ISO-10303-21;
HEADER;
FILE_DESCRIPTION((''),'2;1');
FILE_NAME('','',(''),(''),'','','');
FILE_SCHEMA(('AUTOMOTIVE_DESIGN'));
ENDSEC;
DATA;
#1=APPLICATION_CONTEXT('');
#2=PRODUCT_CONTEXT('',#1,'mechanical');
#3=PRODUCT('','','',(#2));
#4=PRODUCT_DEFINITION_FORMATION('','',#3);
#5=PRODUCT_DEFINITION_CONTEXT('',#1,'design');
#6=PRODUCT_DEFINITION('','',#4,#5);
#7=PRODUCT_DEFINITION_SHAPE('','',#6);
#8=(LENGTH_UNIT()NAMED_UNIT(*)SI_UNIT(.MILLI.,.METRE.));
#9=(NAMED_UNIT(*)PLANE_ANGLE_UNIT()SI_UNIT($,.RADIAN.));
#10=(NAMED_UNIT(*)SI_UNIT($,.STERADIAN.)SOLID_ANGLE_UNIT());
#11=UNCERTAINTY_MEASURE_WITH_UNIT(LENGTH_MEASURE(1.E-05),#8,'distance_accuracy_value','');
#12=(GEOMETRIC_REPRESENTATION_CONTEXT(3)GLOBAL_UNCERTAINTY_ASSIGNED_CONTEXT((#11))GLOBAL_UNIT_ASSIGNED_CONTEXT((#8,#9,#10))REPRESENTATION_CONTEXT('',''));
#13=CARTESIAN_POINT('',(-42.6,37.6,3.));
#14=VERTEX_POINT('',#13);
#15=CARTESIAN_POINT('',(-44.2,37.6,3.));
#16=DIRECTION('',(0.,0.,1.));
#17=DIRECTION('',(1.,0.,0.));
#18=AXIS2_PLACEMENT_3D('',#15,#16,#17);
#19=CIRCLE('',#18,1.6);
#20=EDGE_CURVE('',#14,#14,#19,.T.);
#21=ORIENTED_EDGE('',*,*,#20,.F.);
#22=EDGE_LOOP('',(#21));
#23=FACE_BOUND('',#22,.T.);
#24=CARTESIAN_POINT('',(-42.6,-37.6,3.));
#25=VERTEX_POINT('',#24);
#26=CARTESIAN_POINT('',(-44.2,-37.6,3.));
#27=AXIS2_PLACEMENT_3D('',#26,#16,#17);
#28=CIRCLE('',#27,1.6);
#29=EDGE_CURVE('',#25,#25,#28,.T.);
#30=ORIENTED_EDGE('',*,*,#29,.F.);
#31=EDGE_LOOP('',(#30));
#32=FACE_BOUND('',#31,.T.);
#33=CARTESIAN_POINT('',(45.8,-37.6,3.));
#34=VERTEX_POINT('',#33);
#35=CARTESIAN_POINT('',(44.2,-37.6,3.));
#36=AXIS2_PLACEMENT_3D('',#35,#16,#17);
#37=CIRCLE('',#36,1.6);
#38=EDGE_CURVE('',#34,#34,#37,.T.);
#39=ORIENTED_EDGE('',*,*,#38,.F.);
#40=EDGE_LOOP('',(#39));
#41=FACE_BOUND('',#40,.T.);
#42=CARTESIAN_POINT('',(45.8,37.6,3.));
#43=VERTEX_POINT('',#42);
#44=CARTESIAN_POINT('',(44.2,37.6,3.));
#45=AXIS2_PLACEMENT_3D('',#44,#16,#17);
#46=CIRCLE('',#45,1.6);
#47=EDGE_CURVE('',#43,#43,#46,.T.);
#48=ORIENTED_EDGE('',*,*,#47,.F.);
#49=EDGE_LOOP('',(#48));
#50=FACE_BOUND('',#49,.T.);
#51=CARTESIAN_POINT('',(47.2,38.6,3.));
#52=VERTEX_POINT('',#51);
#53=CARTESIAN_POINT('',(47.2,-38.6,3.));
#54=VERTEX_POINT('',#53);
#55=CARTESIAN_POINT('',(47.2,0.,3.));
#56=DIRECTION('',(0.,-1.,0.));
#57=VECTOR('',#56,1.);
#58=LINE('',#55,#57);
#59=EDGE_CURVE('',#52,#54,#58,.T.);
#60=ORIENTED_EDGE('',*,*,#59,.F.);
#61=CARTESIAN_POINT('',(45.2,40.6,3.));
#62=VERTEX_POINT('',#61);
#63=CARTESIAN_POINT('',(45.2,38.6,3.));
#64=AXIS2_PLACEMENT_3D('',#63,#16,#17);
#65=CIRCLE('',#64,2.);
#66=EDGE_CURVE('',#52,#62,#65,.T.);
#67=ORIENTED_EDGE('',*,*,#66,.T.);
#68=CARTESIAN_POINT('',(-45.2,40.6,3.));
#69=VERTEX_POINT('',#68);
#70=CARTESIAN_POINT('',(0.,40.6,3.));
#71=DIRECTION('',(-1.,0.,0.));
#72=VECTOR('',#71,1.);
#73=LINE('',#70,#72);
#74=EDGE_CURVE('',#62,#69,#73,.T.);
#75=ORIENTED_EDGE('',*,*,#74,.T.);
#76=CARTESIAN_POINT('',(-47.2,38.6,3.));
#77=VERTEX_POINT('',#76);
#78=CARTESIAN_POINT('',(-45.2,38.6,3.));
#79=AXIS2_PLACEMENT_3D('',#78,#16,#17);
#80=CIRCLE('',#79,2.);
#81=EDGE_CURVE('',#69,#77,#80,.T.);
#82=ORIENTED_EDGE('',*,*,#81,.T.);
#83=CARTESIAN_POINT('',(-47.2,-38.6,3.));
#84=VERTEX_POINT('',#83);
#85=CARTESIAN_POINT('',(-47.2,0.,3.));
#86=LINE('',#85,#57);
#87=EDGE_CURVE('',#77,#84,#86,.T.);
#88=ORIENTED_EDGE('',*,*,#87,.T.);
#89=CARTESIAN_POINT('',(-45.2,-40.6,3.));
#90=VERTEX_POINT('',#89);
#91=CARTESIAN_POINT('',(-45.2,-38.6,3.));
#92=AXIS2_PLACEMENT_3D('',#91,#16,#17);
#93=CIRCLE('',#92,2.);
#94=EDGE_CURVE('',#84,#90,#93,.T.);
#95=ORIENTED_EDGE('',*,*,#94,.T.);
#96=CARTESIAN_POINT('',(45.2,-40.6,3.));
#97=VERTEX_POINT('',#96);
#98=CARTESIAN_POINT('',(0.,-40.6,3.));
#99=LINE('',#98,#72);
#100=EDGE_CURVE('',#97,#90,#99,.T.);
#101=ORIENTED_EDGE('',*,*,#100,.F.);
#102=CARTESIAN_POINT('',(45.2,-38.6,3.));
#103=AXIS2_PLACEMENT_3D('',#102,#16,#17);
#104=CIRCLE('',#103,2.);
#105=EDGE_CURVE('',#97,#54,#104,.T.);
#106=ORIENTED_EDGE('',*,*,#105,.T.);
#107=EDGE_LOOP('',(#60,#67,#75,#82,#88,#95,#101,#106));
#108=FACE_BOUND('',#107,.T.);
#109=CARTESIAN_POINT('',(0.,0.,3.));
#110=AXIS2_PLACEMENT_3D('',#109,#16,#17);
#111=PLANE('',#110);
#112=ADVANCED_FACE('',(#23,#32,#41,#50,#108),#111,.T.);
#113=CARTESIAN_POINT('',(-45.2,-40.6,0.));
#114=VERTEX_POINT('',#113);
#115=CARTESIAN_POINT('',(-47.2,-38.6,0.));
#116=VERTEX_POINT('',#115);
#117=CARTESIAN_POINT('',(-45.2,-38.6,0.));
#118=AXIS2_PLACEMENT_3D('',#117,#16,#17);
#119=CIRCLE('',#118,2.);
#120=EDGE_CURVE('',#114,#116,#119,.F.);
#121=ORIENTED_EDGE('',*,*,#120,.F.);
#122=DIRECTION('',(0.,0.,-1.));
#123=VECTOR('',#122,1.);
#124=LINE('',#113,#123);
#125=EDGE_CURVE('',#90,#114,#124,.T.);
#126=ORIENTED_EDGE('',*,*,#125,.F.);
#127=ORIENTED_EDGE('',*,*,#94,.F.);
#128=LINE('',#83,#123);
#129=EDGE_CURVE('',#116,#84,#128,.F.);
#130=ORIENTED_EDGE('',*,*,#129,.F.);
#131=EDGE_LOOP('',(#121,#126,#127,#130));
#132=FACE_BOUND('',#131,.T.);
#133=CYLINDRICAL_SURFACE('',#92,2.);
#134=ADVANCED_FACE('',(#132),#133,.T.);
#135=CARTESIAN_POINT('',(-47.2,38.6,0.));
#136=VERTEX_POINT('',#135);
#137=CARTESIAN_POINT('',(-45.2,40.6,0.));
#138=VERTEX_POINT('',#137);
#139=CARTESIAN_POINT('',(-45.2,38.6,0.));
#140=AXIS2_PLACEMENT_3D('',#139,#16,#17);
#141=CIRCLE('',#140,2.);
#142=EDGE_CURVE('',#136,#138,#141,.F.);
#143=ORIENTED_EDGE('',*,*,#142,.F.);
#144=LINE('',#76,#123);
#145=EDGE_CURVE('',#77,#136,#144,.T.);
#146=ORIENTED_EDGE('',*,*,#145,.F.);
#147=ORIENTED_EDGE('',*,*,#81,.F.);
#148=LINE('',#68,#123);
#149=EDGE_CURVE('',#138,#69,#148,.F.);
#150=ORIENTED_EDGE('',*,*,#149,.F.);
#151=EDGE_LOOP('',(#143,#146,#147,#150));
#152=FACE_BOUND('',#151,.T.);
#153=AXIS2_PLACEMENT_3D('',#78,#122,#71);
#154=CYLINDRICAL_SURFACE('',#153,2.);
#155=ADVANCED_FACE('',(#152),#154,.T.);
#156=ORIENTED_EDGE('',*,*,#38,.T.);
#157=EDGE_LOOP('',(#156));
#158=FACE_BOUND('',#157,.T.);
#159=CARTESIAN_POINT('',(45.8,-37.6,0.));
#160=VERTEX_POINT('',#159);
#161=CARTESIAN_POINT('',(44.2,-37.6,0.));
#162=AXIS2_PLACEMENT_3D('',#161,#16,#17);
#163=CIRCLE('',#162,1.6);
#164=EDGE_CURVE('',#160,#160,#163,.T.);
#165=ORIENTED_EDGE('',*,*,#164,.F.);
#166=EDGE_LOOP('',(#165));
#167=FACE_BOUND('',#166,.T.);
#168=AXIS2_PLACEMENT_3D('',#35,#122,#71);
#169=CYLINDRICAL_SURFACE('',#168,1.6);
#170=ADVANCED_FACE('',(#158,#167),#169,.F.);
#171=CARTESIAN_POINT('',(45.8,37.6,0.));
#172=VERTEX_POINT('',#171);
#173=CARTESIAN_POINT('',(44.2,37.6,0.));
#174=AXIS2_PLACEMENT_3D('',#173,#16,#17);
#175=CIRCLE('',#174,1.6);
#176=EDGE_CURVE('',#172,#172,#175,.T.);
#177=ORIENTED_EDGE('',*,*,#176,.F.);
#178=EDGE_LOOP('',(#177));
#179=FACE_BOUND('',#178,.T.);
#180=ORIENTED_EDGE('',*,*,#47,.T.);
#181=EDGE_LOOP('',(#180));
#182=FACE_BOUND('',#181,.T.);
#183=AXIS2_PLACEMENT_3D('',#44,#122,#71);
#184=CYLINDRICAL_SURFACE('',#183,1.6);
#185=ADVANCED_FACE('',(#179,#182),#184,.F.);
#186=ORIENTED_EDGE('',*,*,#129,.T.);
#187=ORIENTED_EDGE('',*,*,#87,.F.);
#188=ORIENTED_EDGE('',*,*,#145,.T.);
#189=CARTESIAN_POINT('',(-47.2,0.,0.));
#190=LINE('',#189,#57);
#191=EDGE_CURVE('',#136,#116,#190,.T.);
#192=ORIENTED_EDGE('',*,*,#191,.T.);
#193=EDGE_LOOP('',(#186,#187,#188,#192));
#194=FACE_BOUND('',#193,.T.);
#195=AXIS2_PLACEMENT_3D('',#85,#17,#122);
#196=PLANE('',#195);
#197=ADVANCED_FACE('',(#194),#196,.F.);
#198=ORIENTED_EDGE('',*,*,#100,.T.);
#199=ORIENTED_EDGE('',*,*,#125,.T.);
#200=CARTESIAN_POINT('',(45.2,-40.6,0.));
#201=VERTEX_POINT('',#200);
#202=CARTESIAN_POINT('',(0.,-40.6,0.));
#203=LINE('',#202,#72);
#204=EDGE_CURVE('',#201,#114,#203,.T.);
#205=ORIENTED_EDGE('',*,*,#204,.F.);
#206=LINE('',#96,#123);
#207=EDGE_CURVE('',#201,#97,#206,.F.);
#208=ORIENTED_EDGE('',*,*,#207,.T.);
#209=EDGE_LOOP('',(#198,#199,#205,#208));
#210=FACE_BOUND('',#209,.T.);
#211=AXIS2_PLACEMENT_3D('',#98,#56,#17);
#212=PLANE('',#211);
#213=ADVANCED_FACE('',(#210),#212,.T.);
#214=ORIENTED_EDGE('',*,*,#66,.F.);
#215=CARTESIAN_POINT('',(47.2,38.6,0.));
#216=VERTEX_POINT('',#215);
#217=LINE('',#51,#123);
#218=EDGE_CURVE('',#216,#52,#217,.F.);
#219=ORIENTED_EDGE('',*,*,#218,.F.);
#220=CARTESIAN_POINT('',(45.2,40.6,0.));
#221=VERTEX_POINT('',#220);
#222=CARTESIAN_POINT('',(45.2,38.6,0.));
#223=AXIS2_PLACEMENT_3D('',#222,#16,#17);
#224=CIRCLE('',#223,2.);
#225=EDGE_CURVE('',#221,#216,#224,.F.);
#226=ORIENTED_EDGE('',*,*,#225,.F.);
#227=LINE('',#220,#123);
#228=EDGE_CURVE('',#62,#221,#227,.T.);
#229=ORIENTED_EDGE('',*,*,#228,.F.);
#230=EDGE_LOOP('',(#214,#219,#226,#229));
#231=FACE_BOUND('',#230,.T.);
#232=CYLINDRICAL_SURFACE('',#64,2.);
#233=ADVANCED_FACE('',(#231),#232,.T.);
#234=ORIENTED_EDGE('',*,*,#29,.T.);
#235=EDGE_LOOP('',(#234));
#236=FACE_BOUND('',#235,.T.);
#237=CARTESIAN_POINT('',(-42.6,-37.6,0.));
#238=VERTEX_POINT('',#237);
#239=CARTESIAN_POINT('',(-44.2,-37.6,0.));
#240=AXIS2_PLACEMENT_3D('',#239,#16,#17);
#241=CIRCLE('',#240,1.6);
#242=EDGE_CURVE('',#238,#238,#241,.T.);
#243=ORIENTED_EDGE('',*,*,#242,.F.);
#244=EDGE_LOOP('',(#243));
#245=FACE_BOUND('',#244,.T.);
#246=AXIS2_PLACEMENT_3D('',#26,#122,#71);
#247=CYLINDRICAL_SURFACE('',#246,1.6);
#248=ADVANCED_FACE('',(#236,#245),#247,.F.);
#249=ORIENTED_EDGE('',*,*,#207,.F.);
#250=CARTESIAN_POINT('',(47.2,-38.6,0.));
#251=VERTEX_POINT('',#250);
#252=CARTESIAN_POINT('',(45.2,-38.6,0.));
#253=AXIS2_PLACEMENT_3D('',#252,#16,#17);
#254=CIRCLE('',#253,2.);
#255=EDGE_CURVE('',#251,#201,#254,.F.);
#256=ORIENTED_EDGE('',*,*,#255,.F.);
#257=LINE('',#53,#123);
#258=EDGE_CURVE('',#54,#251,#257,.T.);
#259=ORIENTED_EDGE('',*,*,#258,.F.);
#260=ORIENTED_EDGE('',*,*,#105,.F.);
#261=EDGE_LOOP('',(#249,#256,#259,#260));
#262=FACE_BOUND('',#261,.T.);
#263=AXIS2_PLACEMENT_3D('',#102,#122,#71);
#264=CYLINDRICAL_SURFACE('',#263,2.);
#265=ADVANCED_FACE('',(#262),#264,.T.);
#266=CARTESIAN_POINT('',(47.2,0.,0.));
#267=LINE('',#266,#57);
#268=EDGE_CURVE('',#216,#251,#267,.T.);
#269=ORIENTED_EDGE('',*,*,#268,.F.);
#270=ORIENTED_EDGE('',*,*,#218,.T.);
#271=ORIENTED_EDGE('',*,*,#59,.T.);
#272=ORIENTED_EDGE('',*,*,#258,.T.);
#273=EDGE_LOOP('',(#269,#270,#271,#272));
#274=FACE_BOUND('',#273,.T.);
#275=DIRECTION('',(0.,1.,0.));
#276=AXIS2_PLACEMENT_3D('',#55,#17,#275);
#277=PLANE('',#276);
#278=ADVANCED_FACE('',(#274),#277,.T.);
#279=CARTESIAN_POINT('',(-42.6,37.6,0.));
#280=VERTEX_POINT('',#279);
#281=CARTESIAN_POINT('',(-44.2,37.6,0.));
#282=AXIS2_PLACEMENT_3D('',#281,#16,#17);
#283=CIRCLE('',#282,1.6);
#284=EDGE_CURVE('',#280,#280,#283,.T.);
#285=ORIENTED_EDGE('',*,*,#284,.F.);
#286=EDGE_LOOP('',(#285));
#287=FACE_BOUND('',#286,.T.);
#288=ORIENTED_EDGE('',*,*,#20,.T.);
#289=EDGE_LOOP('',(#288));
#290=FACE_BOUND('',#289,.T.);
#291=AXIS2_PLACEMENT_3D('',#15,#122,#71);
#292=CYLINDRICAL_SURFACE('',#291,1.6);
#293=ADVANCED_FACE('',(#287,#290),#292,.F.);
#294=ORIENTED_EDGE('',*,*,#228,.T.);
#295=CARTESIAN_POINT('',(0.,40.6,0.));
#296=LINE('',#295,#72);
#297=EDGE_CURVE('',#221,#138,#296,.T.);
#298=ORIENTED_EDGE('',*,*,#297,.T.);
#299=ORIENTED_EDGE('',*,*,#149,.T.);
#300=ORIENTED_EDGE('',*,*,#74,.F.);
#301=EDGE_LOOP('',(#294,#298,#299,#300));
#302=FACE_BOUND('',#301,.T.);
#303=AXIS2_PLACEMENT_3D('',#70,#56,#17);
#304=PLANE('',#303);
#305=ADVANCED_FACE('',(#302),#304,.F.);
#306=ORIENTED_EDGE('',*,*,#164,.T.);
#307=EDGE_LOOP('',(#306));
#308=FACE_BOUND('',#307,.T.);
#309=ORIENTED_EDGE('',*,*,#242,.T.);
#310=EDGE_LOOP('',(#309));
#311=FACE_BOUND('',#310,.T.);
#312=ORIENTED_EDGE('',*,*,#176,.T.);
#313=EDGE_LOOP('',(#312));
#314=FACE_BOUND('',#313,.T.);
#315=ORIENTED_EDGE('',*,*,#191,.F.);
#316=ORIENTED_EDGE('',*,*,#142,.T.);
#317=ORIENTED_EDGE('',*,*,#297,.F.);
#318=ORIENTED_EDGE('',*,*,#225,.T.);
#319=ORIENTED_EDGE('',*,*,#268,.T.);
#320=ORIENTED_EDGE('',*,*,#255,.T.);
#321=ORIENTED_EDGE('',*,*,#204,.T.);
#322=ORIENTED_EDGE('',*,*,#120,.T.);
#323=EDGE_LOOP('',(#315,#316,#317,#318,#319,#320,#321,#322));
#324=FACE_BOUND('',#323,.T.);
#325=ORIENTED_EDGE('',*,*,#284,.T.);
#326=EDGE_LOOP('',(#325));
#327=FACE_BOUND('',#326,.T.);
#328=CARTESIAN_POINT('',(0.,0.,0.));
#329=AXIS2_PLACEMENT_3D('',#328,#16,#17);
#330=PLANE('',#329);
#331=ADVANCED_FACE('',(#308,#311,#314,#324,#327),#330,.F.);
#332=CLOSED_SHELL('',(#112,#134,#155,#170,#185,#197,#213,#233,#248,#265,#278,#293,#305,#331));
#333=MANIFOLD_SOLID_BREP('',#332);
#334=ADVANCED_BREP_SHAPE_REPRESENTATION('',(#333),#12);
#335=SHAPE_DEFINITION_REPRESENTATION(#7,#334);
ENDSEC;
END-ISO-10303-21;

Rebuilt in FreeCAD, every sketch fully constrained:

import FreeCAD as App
import Part
import Sketcher


def edges_at(feature, points):
    """Names of the edges that pass closest to the given points."""
    edges = feature.Shape.Edges
    near = lambda p: min(range(len(edges)), key=lambda i: edges[i].distToShape(Part.Vertex(*p))[0])
    return sorted({f"Edge{near(p) + 1}" for p in points})


def add_polygon(sketch, points):
    """Adds a closed chain of lines whose ends are joined by coincident constraints."""
    first, n = sketch.GeometryCount, len(points)
    for a, b in zip(points, points[1:] + points[:1]):
        sketch.addGeometry(Part.LineSegment(App.Vector(*a, 0), App.Vector(*b, 0)), False)
    for i in range(n):
        sketch.addConstraint(Sketcher.Constraint("Coincident", first + i, 2, first + (i + 1) % n, 1))

doc = App.newDocument("Part")
body = doc.addObject("PartDesign::Body", "Body")

sketch1 = body.newObject("Sketcher::SketchObject", "Sketch")
sketch1.AttachmentSupport = (doc.getObject("XY_Plane"), [""])
sketch1.MapMode = "FlatFace"
add_polygon(sketch1, [(-47.2, 40.6), (-47.2, -40.6), (47.2, -40.6), (47.2, 40.6)])
sketch1.addGeometry(Part.Circle(App.Vector(-44.2, -37.6, 0), App.Vector(0, 0, 1), 1.6), False)
sketch1.addGeometry(Part.Circle(App.Vector(44.2, -37.6, 0), App.Vector(0, 0, 1), 1.6), False)
sketch1.addGeometry(Part.Circle(App.Vector(-44.2, 37.6, 0), App.Vector(0, 0, 1), 1.6), False)
sketch1.addGeometry(Part.Circle(App.Vector(44.2, 37.6, 0), App.Vector(0, 0, 1), 1.6), False)
sketch1.addConstraint(Sketcher.Constraint("Vertical", 0))
sketch1.addConstraint(Sketcher.Constraint("Horizontal", 1))
sketch1.addConstraint(Sketcher.Constraint("Vertical", 2))
sketch1.addConstraint(Sketcher.Constraint("Horizontal", 3))
sketch1.addConstraint(Sketcher.Constraint("Equal", 4, 5))
sketch1.addConstraint(Sketcher.Constraint("Equal", 5, 6))
sketch1.addConstraint(Sketcher.Constraint("Equal", 6, 7))
sketch1.addConstraint(Sketcher.Constraint("Symmetric", 5, 3, 6, 3, -1, 1))
sketch1.addConstraint(Sketcher.Constraint("Symmetric", 4, 3, 7, 3, -1, 1))
sketch1.addConstraint(Sketcher.Constraint("Symmetric", 0, 2, 2, 2, -1, 1))
sketch1.addConstraint(Sketcher.Constraint("Symmetric", 4, 3, 5, 3, -2))
sketch1.addConstraint(Sketcher.Constraint("Diameter", 4, 3.2))
sketch1.addConstraint(Sketcher.Constraint("DistanceX", 1, 1, 1, 2, 94.4))
sketch1.addConstraint(Sketcher.Constraint("DistanceY", 0, 2, 0, 1, 81.2))
sketch1.addConstraint(Sketcher.Constraint("DistanceX", 0, 2, 4, 3, 3.0))
sketch1.addConstraint(Sketcher.Constraint("DistanceY", 0, 2, 4, 3, 3.0))
pad1 = body.newObject("PartDesign::Pad", "Pad")
pad1.Profile = sketch1
pad1.Length = 3
doc.recompute()

fillet = body.newObject("PartDesign::Fillet", "Fillet")
fillet.Base = (pad1, edges_at(pad1, [
    (47.2, -40.6, 1.5),
    (-47.2, -40.6, 1.5),
    (-47.2, 40.6, 1.5),
    (47.2, 40.6, 1.5),
]))
fillet.Radius = 2

doc.recompute()
